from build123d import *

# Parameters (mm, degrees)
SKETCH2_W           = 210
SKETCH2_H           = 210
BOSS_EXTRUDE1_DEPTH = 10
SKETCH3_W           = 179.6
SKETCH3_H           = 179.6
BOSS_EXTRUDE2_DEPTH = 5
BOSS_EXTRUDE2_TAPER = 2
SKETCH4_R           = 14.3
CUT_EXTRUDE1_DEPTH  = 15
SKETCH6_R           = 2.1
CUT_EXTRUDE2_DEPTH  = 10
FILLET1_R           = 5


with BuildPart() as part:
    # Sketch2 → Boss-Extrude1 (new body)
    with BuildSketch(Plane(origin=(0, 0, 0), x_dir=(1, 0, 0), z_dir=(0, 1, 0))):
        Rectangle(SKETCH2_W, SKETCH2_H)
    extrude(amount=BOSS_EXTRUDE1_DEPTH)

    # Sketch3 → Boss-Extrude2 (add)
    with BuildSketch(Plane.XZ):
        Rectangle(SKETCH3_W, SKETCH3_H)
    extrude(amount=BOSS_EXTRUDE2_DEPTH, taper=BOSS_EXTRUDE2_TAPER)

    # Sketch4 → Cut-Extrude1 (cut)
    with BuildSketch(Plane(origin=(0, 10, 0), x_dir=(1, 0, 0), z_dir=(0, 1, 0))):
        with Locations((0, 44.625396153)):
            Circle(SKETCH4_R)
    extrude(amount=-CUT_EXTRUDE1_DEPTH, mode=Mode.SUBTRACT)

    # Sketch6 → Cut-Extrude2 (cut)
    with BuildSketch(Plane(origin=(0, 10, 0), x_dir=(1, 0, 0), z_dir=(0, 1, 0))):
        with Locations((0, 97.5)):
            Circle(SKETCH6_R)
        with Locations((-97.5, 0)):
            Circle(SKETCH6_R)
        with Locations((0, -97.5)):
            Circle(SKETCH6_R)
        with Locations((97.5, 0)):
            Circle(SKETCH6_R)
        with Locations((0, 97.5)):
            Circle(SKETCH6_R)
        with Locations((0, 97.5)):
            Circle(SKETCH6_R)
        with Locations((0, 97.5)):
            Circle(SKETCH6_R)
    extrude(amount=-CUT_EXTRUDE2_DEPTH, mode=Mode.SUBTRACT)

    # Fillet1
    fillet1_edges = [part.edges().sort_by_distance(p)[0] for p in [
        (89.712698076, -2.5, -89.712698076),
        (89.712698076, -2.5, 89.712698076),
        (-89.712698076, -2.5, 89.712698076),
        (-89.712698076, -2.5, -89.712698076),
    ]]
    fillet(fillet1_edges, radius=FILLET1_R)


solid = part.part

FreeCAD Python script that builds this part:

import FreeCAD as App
import Part
import Sketcher
Q = App.Units.Quantity


def edges_at(feature, points):
    """Names of the edges that pass closest to the given points."""
    edges = feature.Shape.Edges
    near = lambda p: min(range(len(edges)), key=lambda i: edges[i].distToShape(Part.Vertex(*p))[0])
    return sorted({f"Edge{near(p) + 1}" for p in points})

doc = App.newDocument("Part")
body = doc.addObject("PartDesign::Body", "Body")

sketch1 = body.newObject("Sketcher::SketchObject", "Sketch")
sketch1.AttachmentSupport = (doc.getObject("XZ_Plane"), [""])
sketch1.MapMode = "FlatFace"
sketch1.addGeometry([
    Part.LineSegment(App.Vector(-105, -105, 0), App.Vector(-105, 105, 0)),
    Part.LineSegment(App.Vector(-105, 105, 0), App.Vector(105, 105, 0)),
    Part.LineSegment(App.Vector(105, 105, 0), App.Vector(105, -105, 0)),
    Part.LineSegment(App.Vector(105, -105, 0), App.Vector(-105, -105, 0)),
], False)
sketch1.addConstraint([
    Sketcher.Constraint("Coincident", 0, 2, 1, 1),
    Sketcher.Constraint("Coincident", 1, 2, 2, 1),
    Sketcher.Constraint("Coincident", 2, 2, 3, 1),
    Sketcher.Constraint("Coincident", 3, 2, 0, 1),
    Sketcher.Constraint("Vertical", 0),
    Sketcher.Constraint("Horizontal", 1),
    Sketcher.Constraint("Vertical", 2),
    Sketcher.Constraint("Horizontal", 3),
    Sketcher.Constraint("Symmetric", 0, 2, 2, 2, -1, 1),
    Sketcher.Constraint("Equal", 3, 0),
    Sketcher.Constraint("DistanceX", 1, 1, 1, 2, Q("210 mm")),
])
pad1 = body.newObject("PartDesign::Pad", "Pad")
pad1.Profile = sketch1
pad1.Length = 10
pad1.Reversed = True

sketch2 = body.newObject("Sketcher::SketchObject", "Sketch001")
sketch2.AttachmentSupport = (doc.getObject("XZ_Plane"), [""])
sketch2.MapMode = "FlatFace"
sketch2.addGeometry([
    Part.LineSegment(App.Vector(-90, 90, 0), App.Vector(-90, -90, 0)),
    Part.LineSegment(App.Vector(-90, -90, 0), App.Vector(90, -90, 0)),
    Part.LineSegment(App.Vector(90, -90, 0), App.Vector(90, 90, 0)),
    Part.LineSegment(App.Vector(90, 90, 0), App.Vector(-90, 90, 0)),
], False)
sketch2.addConstraint([
    Sketcher.Constraint("Coincident", 0, 2, 1, 1),
    Sketcher.Constraint("Coincident", 1, 2, 2, 1),
    Sketcher.Constraint("Coincident", 2, 2, 3, 1),
    Sketcher.Constraint("Coincident", 3, 2, 0, 1),
    Sketcher.Constraint("Vertical", 0),
    Sketcher.Constraint("Horizontal", 1),
    Sketcher.Constraint("Vertical", 2),
    Sketcher.Constraint("Horizontal", 3),
    Sketcher.Constraint("Symmetric", 0, 2, 2, 2, -1, 1),
    Sketcher.Constraint("Equal", 3, 0),
    Sketcher.Constraint("DistanceX", 1, 1, 1, 2, Q("179.6 mm")),
])
pad2 = body.newObject("PartDesign::Pad", "Pad001")
pad2.Profile = sketch2
pad2.Length = 5
pad2.TaperAngle = -2

sketch3 = body.newObject("Sketcher::SketchObject", "Sketch002")
sketch3.AttachmentSupport = (doc.getObject("XZ_Plane"), [""])
sketch3.MapMode = "FlatFace"
sketch3.AttachmentOffset = App.Placement(App.Vector(0, 0, -10), App.Rotation())
sketch3.addGeometry(Part.Circle(App.Vector(0, -45, 0), App.Vector(0, 0, 1), 14), False)
sketch3.addConstraint([
    Sketcher.Constraint("PointOnObject", 0, 3, -2),
    Sketcher.Constraint("Diameter", 0, Q("28.6 mm")),
    Sketcher.Constraint("DistanceY", 0, 3, -1, 1, Q("44.625396 mm")),
])
pocket1 = body.newObject("PartDesign::Pocket", "Pocket")
pocket1.Profile = sketch3
pocket1.Length = 15
pocket1.Reversed = True

sketch4 = body.newObject("Sketcher::SketchObject", "Sketch003")
sketch4.AttachmentSupport = (doc.getObject("XZ_Plane"), [""])
sketch4.MapMode = "FlatFace"
sketch4.AttachmentOffset = App.Placement(App.Vector(0, 0, -10), App.Rotation())
sketch4.addGeometry([
    Part.Circle(App.Vector(0, -97.5, 0), App.Vector(0, 0, 1), 2.1),
    Part.Circle(App.Vector(-97.5, 0, 0), App.Vector(0, 0, 1), 2.1),
    Part.Circle(App.Vector(0, 97.5, 0), App.Vector(0, 0, 1), 2.1),
    Part.Circle(App.Vector(97.5, 0, 0), App.Vector(0, 0, 1), 2.1),
], False)
sketch4.addConstraint([
    Sketcher.Constraint("Equal", 0, 1),
    Sketcher.Constraint("Equal", 1, 2),
    Sketcher.Constraint("Equal", 2, 3),
    Sketcher.Constraint("Symmetric", 0, 3, 2, 3, -1, 1),
    Sketcher.Constraint("Symmetric", 1, 3, 3, 3, -1, 1),
    Sketcher.Constraint("PointOnObject", 0, 3, -2),
    Sketcher.Constraint("PointOnObject", 1, 3, -1),
    Sketcher.Constraint("Diameter", 0, Q("4.2 mm")),
    Sketcher.Constraint("DistanceY", 0, 3, 2, 3, Q("195 mm")),
    Sketcher.Constraint("DistanceX", 1, 3, 3, 3, Q("195 mm")),
])
pocket2 = body.newObject("PartDesign::Pocket", "Pocket001")
pocket2.Profile = sketch4
pocket2.Length = 10
pocket2.Reversed = True
doc.recompute()

fillet = body.newObject("PartDesign::Fillet", "Fillet")
fillet.Base = (pocket2, edges_at(pocket2, [
    (89.713, -2.5, -89.713),
    (89.713, -2.5, 89.713),
    (-89.713, -2.5, 89.713),
    (-89.713, -2.5, -89.713),
]))
fillet.Radius = 5

doc.recompute()
